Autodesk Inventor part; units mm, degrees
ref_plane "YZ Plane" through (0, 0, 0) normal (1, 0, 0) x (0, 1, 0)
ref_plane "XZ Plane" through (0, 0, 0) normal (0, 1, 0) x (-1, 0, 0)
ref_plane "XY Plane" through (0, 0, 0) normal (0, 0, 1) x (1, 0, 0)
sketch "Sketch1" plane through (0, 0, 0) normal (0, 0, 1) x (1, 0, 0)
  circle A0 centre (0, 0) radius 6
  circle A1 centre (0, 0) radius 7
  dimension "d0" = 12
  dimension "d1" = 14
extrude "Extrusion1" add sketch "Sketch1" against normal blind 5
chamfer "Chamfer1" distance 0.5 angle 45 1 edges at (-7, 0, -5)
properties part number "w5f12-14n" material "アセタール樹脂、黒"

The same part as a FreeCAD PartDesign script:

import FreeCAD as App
import Part
import Sketcher
from FreeCAD import Vector
Q = App.Units.Quantity


def edges_at(feature, points):
    """Names of the edges that pass closest to the given points."""
    edges = feature.Shape.Edges
    near = lambda p: min(range(len(edges)), key=lambda i: edges[i].distToShape(Part.Vertex(*p))[0])
    return sorted({f"Edge{near(p) + 1}" for p in points})

doc = App.newDocument("Part")
body = doc.addObject("PartDesign::Body", "Body")

sketch1 = body.newObject("Sketcher::SketchObject", "Sketch")
sketch1.AttachmentSupport = (doc.getObject("XY_Plane"), [""])
sketch1.MapMode = "FlatFace"
sketch1.addGeometry(Part.Circle(Vector(0, 0, 0), Vector(0, 0, 1), 7), False)
sketch1.addGeometry(Part.Circle(Vector(0, 0, 0), Vector(0, 0, 1), 6), False)
sketch1.addConstraint(Sketcher.Constraint("Coincident", 0, 3, -1, 1))
sketch1.addConstraint(Sketcher.Constraint("Coincident", 1, 3, -1, 1))
sketch1.addConstraint(Sketcher.Constraint("Diameter", 0, Q("14 mm")))
sketch1.addConstraint(Sketcher.Constraint("Diameter", 1, Q("12 mm")))
pad1 = body.newObject("PartDesign::Pad", "Pad")
pad1.Profile = sketch1
pad1.Length = 5
pad1.Reversed = True
doc.recompute()

chamfer = body.newObject("PartDesign::Chamfer", "Chamfer")
chamfer.Base = (pad1, edges_at(pad1, [(-7, 0, -5)]))
chamfer.Size = 0.5

doc.recompute()
